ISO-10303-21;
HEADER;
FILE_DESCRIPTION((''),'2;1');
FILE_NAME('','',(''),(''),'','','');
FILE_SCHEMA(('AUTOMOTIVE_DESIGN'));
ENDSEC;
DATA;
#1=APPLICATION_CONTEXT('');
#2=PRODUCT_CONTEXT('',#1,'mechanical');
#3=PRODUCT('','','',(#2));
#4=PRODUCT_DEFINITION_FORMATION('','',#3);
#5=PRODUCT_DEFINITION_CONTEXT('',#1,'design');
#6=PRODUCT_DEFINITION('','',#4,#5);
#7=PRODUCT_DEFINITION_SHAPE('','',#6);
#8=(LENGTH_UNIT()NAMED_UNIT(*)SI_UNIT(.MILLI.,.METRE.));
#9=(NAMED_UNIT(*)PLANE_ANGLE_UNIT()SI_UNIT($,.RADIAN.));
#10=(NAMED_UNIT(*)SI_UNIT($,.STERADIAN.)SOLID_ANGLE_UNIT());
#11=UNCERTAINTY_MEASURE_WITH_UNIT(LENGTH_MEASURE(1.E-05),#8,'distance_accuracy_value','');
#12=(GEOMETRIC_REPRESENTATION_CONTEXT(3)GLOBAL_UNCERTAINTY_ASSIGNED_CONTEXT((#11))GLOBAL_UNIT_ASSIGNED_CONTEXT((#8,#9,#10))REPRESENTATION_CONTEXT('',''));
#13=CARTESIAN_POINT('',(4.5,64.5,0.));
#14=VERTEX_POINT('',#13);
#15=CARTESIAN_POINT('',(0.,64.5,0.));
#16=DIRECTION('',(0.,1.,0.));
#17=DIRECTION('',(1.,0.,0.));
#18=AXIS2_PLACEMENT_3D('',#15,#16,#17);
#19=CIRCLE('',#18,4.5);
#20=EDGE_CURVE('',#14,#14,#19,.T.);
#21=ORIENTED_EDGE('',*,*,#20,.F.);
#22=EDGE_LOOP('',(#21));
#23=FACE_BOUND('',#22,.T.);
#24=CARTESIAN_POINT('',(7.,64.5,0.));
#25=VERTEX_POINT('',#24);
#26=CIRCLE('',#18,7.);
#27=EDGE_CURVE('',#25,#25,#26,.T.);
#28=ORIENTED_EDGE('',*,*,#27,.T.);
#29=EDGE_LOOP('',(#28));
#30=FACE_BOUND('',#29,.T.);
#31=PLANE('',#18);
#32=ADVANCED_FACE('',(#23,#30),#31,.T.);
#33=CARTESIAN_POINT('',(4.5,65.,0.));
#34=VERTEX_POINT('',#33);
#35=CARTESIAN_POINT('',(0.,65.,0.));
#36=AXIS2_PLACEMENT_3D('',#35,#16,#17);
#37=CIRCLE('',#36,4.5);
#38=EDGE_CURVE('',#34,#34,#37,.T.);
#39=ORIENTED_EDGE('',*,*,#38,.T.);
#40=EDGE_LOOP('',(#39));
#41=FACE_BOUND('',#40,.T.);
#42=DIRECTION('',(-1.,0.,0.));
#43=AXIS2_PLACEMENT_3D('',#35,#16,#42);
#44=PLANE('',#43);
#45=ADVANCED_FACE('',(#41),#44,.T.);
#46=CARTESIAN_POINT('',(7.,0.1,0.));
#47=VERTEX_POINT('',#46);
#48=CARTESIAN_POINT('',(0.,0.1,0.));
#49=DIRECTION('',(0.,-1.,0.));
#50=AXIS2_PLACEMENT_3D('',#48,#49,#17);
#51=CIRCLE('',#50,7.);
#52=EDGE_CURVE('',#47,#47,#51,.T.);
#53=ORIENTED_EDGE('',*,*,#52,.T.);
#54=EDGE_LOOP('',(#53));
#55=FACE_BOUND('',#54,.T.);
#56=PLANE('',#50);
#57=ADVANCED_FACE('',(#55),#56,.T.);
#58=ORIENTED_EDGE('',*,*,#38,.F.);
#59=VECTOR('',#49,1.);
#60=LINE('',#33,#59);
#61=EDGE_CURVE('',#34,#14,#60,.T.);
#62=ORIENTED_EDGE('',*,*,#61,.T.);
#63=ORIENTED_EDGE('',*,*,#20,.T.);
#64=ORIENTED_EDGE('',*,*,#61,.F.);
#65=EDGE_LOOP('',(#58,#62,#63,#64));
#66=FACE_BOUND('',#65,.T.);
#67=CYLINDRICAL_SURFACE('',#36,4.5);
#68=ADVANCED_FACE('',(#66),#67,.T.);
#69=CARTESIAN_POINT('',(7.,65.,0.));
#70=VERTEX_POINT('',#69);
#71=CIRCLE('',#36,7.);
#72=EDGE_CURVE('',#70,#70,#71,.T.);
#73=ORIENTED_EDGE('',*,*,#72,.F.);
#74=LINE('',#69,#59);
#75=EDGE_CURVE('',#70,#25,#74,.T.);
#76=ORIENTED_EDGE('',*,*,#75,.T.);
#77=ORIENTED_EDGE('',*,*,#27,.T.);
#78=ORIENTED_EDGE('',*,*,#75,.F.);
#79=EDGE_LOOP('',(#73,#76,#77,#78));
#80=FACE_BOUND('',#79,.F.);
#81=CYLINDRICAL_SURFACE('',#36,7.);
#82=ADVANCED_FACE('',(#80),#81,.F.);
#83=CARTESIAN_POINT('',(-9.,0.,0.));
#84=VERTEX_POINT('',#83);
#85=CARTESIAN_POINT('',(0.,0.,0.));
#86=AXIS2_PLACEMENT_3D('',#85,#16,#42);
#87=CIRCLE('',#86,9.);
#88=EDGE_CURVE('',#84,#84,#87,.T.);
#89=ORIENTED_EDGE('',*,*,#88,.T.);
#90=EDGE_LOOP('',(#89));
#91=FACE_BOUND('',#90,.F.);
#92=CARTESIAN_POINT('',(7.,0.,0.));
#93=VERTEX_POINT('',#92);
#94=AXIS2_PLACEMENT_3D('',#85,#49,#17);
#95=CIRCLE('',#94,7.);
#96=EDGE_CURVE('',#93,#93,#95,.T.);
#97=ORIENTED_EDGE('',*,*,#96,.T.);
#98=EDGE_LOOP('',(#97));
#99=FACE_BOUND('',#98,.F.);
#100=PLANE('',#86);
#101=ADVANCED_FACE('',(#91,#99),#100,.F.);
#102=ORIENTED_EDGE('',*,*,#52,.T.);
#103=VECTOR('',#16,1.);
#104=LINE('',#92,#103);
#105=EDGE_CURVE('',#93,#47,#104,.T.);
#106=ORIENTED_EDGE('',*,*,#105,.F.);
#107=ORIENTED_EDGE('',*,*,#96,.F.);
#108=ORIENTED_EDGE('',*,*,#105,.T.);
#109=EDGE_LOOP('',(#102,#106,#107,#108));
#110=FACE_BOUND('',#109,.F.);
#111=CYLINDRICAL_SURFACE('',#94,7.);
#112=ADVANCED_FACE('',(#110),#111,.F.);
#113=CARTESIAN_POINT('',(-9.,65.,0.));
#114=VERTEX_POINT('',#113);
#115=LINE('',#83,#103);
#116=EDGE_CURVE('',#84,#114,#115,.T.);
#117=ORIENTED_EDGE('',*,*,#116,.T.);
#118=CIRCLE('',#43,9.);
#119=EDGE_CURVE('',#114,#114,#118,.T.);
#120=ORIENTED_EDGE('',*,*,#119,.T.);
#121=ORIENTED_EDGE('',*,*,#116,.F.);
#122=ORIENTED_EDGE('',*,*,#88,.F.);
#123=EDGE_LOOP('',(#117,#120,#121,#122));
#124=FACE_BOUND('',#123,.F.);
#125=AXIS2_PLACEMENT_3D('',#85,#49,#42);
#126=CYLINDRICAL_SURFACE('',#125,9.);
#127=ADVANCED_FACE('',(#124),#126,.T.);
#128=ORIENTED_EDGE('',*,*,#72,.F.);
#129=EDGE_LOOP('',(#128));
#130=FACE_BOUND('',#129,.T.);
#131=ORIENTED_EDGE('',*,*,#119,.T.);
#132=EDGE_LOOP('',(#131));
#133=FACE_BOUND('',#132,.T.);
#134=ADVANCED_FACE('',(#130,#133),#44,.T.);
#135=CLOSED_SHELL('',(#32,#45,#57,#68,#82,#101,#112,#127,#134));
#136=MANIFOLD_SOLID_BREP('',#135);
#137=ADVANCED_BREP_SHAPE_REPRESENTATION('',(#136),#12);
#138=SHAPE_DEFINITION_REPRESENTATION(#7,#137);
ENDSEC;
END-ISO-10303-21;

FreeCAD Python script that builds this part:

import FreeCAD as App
import Part
import Sketcher

V = App.Vector
Q = App.Units.Quantity

doc = App.newDocument("Part")
params = doc.addObject("Spreadsheet::Sheet", "Params")
for row, (alias, value) in enumerate([
    ("sketch1_diameter", "18 mm"),
    ("pad1_length", "65 mm"),
    ("sketch2_diameter", "14 mm"),
    ("sketch2_diameter2", "9 mm"),
    ("pocket1_length", "0.5 mm"),
    ("sketch3_diameter", "14 mm"),
    ("pocket2_length", "0.1 mm"),
], start=1):
    params.set(f"A{row}", alias)
    params.set(f"B{row}", "=" + value)
    params.setAlias(f"B{row}", alias)

body = doc.addObject("PartDesign::Body", "Body")

sketch1 = body.newObject("Sketcher::SketchObject", "Sketch")
sketch1.AttachmentSupport = (doc.getObject("XZ_Plane"), [""])
sketch1.MapMode = "FlatFace"
sketch1.addGeometry(Part.Circle(V(0, 0, 0), V(0, 0, 1), 9), False)
sketch1.addConstraint(Sketcher.Constraint("Coincident", 0, 3, -1, 1))
sketch1.addConstraint(Sketcher.Constraint("Diameter", 0, Q("18 mm")))
sketch1.setExpression("Constraints[1]", "Params.sketch1_diameter")
pad1 = body.newObject("PartDesign::Pad", "Pad")
pad1.Profile = sketch1
pad1.setExpression("Length", "Params.pad1_length")
pad1.Reversed = True

sketch2 = body.newObject("Sketcher::SketchObject", "Sketch001")
sketch2.AttachmentSupport = (doc.getObject("XZ_Plane"), [""])
sketch2.MapMode = "FlatFace"
sketch2.AttachmentOffset = App.Placement(V(0, 0, -65), App.Rotation())
sketch2.addGeometry(Part.Circle(V(0, 0, 0), V(0, 0, 1), 7), False)
sketch2.addGeometry(Part.Circle(V(0, 0, 0), V(0, 0, 1), 4.5), False)
sketch2.addConstraint(Sketcher.Constraint("Coincident", 0, 3, -1, 1))
sketch2.addConstraint(Sketcher.Constraint("Coincident", 1, 3, -1, 1))
sketch2.addConstraint(Sketcher.Constraint("Diameter", 0, Q("14 mm")))
sketch2.addConstraint(Sketcher.Constraint("Diameter", 1, Q("9 mm")))
sketch2.setExpression("Constraints[2]", "Params.sketch2_diameter")
sketch2.setExpression("Constraints[3]", "Params.sketch2_diameter2")
pocket1 = body.newObject("PartDesign::Pocket", "Pocket")
pocket1.Profile = sketch2
pocket1.setExpression("Length", "Params.pocket1_length")
pocket1.Reversed = True

sketch3 = body.newObject("Sketcher::SketchObject", "Sketch002")
sketch3.AttachmentSupport = (doc.getObject("XZ_Plane"), [""])
sketch3.MapMode = "FlatFace"
sketch3.addGeometry(Part.Circle(V(0, 0, 0), V(0, 0, 1), 7), False)
sketch3.addConstraint(Sketcher.Constraint("Coincident", 0, 3, -1, 1))
sketch3.addConstraint(Sketcher.Constraint("Diameter", 0, Q("14 mm")))
sketch3.setExpression("Constraints[1]", "Params.sketch3_diameter")
pocket2 = body.newObject("PartDesign::Pocket", "Pocket001")
pocket2.Profile = sketch3
pocket2.setExpression("Length", "Params.pocket2_length")

doc.recompute()
